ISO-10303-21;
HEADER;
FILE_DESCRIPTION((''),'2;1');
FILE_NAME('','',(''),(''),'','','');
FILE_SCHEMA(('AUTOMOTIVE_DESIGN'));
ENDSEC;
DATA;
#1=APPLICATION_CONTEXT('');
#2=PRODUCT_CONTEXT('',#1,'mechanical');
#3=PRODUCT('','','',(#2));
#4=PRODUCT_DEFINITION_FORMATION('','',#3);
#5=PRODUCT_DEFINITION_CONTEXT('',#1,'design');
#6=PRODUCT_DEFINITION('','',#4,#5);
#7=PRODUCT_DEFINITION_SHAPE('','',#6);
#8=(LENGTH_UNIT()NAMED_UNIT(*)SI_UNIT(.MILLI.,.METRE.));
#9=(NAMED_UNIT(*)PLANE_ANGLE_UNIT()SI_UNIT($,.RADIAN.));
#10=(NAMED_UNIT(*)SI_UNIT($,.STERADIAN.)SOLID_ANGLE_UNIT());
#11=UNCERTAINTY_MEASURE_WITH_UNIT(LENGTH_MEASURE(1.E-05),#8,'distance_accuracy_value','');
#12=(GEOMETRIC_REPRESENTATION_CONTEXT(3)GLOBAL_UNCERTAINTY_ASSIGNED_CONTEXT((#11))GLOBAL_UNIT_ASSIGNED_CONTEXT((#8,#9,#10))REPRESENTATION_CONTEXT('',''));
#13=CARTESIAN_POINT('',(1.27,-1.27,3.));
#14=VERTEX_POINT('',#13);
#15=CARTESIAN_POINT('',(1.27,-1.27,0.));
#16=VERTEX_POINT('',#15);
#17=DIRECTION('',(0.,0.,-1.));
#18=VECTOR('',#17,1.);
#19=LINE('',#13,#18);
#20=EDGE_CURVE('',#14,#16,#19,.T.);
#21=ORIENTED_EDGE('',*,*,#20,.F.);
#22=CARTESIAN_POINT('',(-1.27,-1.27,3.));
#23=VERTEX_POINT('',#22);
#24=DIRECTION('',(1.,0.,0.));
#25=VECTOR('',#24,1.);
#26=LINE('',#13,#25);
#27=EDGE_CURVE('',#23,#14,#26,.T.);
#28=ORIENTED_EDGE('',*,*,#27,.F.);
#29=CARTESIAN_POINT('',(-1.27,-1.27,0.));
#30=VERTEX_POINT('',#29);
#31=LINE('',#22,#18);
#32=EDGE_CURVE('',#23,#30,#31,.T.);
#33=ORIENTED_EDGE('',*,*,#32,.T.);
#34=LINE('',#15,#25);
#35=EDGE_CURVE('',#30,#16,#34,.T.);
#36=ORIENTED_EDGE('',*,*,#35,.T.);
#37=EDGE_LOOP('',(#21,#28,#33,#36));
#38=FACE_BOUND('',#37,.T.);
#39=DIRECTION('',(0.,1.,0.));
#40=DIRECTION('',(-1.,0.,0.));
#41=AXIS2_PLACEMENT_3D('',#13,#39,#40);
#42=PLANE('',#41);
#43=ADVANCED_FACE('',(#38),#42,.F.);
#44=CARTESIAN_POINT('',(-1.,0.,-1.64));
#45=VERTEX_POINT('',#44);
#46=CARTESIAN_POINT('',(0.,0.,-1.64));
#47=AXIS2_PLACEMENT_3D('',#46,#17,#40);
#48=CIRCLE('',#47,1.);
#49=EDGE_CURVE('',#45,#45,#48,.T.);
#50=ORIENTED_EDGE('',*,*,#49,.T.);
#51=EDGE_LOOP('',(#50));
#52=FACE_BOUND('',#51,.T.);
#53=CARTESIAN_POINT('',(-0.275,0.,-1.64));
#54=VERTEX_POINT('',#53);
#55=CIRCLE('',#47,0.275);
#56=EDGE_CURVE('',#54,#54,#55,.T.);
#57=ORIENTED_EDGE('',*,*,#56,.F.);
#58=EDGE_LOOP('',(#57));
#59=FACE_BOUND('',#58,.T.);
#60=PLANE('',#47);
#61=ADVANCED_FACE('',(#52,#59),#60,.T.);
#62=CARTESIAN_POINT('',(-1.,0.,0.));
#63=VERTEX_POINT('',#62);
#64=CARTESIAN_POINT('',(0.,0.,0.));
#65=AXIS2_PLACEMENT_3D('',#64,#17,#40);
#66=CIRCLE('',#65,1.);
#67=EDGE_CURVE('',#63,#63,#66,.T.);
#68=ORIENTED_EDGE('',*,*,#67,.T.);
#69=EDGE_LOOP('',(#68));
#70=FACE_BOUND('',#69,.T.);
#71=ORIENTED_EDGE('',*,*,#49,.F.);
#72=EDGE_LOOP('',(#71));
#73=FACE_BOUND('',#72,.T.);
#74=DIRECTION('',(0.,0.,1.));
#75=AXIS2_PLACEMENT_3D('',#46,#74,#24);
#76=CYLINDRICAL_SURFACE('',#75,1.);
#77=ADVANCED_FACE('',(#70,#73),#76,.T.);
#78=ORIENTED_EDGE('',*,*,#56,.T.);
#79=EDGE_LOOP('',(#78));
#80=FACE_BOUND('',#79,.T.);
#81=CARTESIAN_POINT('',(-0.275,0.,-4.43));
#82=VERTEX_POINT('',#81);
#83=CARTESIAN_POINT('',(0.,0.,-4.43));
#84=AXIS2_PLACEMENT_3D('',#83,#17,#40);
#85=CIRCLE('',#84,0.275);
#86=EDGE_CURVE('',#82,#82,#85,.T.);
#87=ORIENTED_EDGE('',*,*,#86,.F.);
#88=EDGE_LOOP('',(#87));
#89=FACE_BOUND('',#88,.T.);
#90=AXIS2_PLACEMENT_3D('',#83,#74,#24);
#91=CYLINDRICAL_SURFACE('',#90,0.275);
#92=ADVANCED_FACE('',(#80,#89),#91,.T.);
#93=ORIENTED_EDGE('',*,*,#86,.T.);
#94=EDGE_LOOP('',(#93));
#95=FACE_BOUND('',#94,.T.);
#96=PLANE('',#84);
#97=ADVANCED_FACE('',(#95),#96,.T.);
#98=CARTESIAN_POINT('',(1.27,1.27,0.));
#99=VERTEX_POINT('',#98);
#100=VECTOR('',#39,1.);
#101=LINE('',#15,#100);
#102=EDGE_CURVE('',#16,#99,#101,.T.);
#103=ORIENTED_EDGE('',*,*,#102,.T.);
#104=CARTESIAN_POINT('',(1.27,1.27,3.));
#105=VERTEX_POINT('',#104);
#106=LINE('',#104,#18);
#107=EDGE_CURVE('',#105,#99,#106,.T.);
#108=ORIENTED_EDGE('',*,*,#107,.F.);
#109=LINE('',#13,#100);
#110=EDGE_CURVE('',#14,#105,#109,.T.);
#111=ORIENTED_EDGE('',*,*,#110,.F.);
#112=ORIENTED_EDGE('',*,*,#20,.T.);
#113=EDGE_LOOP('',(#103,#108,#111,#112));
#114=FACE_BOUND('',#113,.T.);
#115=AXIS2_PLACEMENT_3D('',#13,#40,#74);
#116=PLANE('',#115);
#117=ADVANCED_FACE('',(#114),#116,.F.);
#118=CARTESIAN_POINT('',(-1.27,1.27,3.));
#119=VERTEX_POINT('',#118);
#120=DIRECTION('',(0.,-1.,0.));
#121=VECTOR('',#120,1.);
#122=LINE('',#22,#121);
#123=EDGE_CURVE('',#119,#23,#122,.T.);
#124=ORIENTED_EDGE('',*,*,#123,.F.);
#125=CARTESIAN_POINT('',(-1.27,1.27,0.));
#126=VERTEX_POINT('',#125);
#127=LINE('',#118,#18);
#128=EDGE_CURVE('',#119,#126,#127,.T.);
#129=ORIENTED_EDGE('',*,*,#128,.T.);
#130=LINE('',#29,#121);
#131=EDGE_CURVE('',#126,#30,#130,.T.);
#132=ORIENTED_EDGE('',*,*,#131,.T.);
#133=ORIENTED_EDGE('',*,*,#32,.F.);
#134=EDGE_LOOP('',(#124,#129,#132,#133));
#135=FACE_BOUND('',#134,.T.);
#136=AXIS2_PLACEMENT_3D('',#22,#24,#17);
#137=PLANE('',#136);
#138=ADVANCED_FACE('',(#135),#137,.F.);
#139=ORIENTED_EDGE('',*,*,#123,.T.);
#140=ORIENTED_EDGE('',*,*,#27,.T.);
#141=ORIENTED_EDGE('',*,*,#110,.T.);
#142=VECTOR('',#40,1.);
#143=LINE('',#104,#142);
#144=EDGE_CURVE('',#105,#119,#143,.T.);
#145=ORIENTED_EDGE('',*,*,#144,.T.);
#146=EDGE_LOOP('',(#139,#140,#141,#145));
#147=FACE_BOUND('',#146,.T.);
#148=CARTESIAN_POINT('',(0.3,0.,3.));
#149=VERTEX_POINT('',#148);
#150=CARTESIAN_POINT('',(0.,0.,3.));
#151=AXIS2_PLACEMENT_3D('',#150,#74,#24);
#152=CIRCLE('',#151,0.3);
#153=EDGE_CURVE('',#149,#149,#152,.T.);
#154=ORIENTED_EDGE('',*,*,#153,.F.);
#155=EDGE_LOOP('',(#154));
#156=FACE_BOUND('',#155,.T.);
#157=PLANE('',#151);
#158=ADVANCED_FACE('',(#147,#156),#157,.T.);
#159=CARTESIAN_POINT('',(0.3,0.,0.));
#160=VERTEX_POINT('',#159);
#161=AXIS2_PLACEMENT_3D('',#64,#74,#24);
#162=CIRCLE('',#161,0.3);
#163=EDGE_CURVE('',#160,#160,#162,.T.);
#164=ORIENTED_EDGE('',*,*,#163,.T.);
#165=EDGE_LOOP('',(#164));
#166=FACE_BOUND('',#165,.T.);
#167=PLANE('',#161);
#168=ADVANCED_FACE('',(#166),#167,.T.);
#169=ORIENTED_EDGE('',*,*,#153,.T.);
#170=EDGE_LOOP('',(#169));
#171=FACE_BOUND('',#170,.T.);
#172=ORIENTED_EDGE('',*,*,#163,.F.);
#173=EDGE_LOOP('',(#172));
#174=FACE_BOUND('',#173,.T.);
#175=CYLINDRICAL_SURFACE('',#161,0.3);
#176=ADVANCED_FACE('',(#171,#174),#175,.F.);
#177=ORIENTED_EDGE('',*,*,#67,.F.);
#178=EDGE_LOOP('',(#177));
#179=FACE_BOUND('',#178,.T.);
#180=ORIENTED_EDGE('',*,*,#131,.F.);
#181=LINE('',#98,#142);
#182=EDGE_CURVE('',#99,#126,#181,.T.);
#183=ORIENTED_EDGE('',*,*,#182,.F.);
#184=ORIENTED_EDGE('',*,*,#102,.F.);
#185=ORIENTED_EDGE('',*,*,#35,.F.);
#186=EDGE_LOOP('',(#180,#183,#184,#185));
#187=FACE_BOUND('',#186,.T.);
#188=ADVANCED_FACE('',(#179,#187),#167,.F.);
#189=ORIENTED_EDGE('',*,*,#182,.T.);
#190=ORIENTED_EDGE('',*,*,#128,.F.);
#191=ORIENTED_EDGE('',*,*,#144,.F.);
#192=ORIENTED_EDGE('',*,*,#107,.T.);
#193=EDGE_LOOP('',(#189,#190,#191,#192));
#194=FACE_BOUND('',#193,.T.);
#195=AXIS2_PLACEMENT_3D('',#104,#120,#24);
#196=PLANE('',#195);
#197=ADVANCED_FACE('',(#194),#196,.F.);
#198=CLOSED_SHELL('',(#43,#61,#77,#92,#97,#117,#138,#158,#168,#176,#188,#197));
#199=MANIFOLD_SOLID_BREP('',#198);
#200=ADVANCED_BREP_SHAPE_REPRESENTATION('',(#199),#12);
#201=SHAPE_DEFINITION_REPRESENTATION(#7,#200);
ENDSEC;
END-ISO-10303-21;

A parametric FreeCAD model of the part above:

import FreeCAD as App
import Part
import Sketcher
from FreeCAD import Vector


def add_polygon(sketch, points):
    """Adds a closed chain of lines whose ends are joined by coincident constraints."""
    first, n = sketch.GeometryCount, len(points)
    for a, b in zip(points, points[1:] + points[:1]):
        sketch.addGeometry(Part.LineSegment(App.Vector(*a, 0), App.Vector(*b, 0)), False)
    for i in range(n):
        sketch.addConstraint(Sketcher.Constraint("Coincident", first + i, 2, first + (i + 1) % n, 1))

doc = App.newDocument("Part")
params = doc.addObject("Spreadsheet::Sheet", "Params")
for row, (alias, value) in enumerate([
    ("sketch1_width", "2.54 mm"),
    ("pad1_length", "3 mm"),
    ("sketch2_diameter", "2 mm"),
    ("pad2_length", "1.64 mm"),
    ("sketch3_diameter", "0.55 mm"),
    ("pad3_length", "2.79 mm"),
    ("sketch4_diameter", "0.6 mm"),
    ("pocket1_length", "3 mm"),
], start=1):
    params.set(f"A{row}", alias)
    params.set(f"B{row}", "=" + value)
    params.setAlias(f"B{row}", alias)

body = doc.addObject("PartDesign::Body", "Body")

# Sketch on XY plane
sketch1 = body.newObject("Sketcher::SketchObject", "Sketch")
sketch1.AttachmentSupport = (doc.getObject("XY_Plane"), [""])
sketch1.MapMode = "FlatFace"
add_polygon(sketch1, [(-1.27, 1.27), (-1.27, -1.27), (1.27, -1.27), (1.27, 1.27)])  # lines 0-3
sketch1.addConstraint([
    Sketcher.Constraint("Vertical", 0),
    Sketcher.Constraint("Horizontal", 1),
    Sketcher.Constraint("Vertical", 2),
    Sketcher.Constraint("Horizontal", 3),
    Sketcher.Constraint("Symmetric", 0, 2, 2, 2, -1, 1),
    Sketcher.Constraint("Equal", 3, 0),
    Sketcher.Constraint("DistanceX", 1, 1, 1, 2, 2.54),
])
sketch1.setExpression("Constraints[10]", "Params.sketch1_width")
pad1 = body.newObject("PartDesign::Pad", "Pad")
pad1.Profile = sketch1
pad1.setExpression("Length", "Params.pad1_length")

# Sketch on XY plane
sketch2 = body.newObject("Sketcher::SketchObject", "Sketch001")
sketch2.AttachmentSupport = (doc.getObject("XY_Plane"), [""])
sketch2.MapMode = "FlatFace"
sketch2.addGeometry(Part.Circle(Vector(0, 0, 0), Vector(0, 0, 1), 1), False)
sketch2.addConstraint([
    Sketcher.Constraint("Coincident", 0, 3, -1, 1),
    Sketcher.Constraint("Diameter", 0, 2.0),
])
sketch2.setExpression("Constraints[1]", "Params.sketch2_diameter")
pad2 = body.newObject("PartDesign::Pad", "Pad001")
pad2.Profile = sketch2
pad2.setExpression("Length", "Params.pad2_length")
pad2.Reversed = True

# Sketch on XY plane
sketch3 = body.newObject("Sketcher::SketchObject", "Sketch002")
sketch3.AttachmentSupport = (doc.getObject("XY_Plane"), [""])
sketch3.MapMode = "FlatFace"
sketch3.AttachmentOffset = App.Placement(Vector(0, 0, -1.64), App.Rotation())
sketch3.addGeometry(Part.Circle(Vector(0, 0, 0), Vector(0, 0, 1), 0.275), False)
sketch3.addConstraint([
    Sketcher.Constraint("Coincident", 0, 3, -1, 1),
    Sketcher.Constraint("Diameter", 0, 0.55),
])
sketch3.setExpression("Constraints[1]", "Params.sketch3_diameter")
pad3 = body.newObject("PartDesign::Pad", "Pad002")
pad3.Profile = sketch3
pad3.setExpression("Length", "Params.pad3_length")
pad3.Reversed = True

# Sketch on XY plane
sketch4 = body.newObject("Sketcher::SketchObject", "Sketch003")
sketch4.AttachmentSupport = (doc.getObject("XY_Plane"), [""])
sketch4.MapMode = "FlatFace"
sketch4.AttachmentOffset = App.Placement(Vector(0, 0, 3), App.Rotation())
sketch4.addGeometry(Part.Circle(Vector(0, 0, 0), Vector(0, 0, 1), 0.3), False)
sketch4.addConstraint([
    Sketcher.Constraint("Coincident", 0, 3, -1, 1),
    Sketcher.Constraint("Diameter", 0, 0.6),
])
sketch4.setExpression("Constraints[1]", "Params.sketch4_diameter")
pocket1 = body.newObject("PartDesign::Pocket", "Pocket")
pocket1.Profile = sketch4
pocket1.setExpression("Length", "Params.pocket1_length")

doc.recompute()
